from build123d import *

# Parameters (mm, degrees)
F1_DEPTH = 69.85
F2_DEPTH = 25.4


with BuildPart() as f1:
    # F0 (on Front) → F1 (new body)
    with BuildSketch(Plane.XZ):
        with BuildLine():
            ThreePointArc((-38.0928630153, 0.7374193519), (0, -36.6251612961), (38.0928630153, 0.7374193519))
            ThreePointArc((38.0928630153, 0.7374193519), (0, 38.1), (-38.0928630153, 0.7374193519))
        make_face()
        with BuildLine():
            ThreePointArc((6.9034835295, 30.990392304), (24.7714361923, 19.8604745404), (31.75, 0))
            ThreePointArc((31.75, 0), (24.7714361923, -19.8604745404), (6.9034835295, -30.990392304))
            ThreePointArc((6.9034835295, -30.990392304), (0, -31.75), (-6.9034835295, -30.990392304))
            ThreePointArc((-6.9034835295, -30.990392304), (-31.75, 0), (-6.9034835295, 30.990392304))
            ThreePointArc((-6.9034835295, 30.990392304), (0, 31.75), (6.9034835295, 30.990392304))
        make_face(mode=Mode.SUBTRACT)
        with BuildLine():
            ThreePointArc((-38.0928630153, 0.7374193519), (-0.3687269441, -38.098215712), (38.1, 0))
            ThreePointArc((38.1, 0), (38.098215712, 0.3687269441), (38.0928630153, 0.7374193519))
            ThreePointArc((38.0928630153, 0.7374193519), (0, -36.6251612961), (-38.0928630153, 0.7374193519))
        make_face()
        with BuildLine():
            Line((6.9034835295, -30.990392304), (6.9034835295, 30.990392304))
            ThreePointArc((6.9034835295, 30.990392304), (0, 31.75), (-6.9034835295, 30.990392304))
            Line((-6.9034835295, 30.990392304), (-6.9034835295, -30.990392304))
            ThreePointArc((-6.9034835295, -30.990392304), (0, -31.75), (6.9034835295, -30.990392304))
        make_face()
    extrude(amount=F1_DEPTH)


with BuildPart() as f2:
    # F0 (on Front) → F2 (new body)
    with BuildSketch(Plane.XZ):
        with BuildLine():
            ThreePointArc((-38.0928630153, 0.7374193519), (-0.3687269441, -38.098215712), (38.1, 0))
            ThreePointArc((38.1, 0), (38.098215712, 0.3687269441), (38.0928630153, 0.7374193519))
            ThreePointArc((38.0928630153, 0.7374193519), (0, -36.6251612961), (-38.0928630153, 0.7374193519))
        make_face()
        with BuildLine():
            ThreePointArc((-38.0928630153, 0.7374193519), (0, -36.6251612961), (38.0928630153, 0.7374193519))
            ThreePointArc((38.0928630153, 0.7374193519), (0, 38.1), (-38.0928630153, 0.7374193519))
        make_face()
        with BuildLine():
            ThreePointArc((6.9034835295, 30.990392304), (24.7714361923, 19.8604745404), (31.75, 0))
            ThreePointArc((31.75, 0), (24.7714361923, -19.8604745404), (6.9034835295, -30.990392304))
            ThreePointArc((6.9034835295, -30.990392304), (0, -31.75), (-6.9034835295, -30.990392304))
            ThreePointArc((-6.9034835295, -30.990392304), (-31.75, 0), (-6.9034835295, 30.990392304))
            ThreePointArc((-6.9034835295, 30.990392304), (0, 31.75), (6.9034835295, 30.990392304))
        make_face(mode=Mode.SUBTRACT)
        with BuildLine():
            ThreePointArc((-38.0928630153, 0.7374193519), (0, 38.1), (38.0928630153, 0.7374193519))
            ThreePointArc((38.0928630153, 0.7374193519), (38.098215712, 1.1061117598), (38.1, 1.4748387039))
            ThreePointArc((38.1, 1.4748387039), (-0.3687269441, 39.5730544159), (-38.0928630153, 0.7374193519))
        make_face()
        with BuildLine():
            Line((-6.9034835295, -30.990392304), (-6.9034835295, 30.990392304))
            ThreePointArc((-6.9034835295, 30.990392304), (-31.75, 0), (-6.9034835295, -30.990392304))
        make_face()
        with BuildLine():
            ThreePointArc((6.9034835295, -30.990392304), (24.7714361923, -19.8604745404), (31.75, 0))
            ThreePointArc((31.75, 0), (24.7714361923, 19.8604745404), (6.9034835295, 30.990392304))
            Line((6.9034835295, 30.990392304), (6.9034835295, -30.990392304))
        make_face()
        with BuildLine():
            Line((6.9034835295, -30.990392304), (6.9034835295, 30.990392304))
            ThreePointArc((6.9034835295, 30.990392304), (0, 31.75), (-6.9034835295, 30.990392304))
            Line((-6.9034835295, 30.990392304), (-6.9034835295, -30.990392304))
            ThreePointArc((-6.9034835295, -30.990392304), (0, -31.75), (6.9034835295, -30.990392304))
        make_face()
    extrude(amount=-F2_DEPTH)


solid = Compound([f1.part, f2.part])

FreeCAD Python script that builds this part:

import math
import FreeCAD as App
import Part
import Sketcher
Q = App.Units.Quantity

doc = App.newDocument("Part")
body = doc.addObject("PartDesign::Body", "Body")

sketch1 = body.newObject("Sketcher::SketchObject", "Sketch")
sketch1.AttachmentSupport = (doc.getObject("XZ_Plane"), [""])
sketch1.MapMode = "FlatFace"
sketch1.addGeometry(Part.ArcOfCircle(Part.Circle(App.Vector(0, 0, 0), App.Vector(0, 0, 1), 38.1), math.radians(1), math.radians(179)), False)
sketch1.addGeometry(Part.ArcOfCircle(Part.Circle(App.Vector(0, 0, 0), App.Vector(0, 0, 1), 38.1), math.radians(179), math.radians(360)), False)
sketch1.addGeometry(Part.ArcOfCircle(Part.Circle(App.Vector(0, 0, 0), App.Vector(0, 0, 1), 38.1), math.radians(0), math.radians(1.11)), False)
sketch1.addGeometry(Part.ArcOfCircle(Part.Circle(App.Vector(0, 0, 0), App.Vector(0, 0, 1), 31.8), math.radians(103), math.radians(257)), False)
sketch1.addGeometry(Part.LineSegment(App.Vector(-6.9, 31, 0), App.Vector(-6.9, -31, 0)), False)
sketch1.addGeometry(Part.ArcOfCircle(Part.Circle(App.Vector(0, 0, 0), App.Vector(0, 0, 1), 31.8), math.radians(-77), math.radians(77)), False)
sketch1.addGeometry(Part.LineSegment(App.Vector(6.9, -31, 0), App.Vector(6.9, 31, 0)), False)
sketch1.addConstraint(Sketcher.Constraint("Tangent", 0, 2, 1, 1))
sketch1.addConstraint(Sketcher.Constraint("Tangent", 1, 2, 2, 1))
sketch1.addConstraint(Sketcher.Constraint("Coincident", 2, 2, 0, 1))
sketch1.addConstraint(Sketcher.Constraint("Coincident", 3, 1, 4, 1))
sketch1.addConstraint(Sketcher.Constraint("Coincident", 4, 2, 3, 2))
sketch1.addConstraint(Sketcher.Constraint("Coincident", 5, 1, 6, 1))
sketch1.addConstraint(Sketcher.Constraint("Coincident", 6, 2, 5, 2))
sketch1.addConstraint(Sketcher.Constraint("Vertical", 4))
sketch1.addConstraint(Sketcher.Constraint("Vertical", 6))
sketch1.addConstraint(Sketcher.Constraint("Coincident", 0, 3, -1, 1))
sketch1.addConstraint(Sketcher.Constraint("Coincident", 3, 3, -1, 1))
sketch1.addConstraint(Sketcher.Constraint("Coincident", 5, 3, -1, 1))
sketch1.addConstraint(Sketcher.Constraint("Equal", 1, 2))
sketch1.addConstraint(Sketcher.Constraint("Equal", 3, 5))
sketch1.addConstraint(Sketcher.Constraint("PointOnObject", 1, 2, -1))
sketch1.addConstraint(Sketcher.Constraint("Horizontal", 0, 2, 2, 2))
sketch1.addConstraint(Sketcher.Constraint("Horizontal", 4, 2, 5, 1))
sketch1.addConstraint(Sketcher.Constraint("Radius", 0, Q("1.5 in")))
sketch1.addConstraint(Sketcher.Constraint("Radius", 3, Q("1.25 in")))
sketch1.addConstraint(Sketcher.Constraint("DistanceY", 4, 2, 4, 1, Q("61.980785 mm")))
sketch1.addConstraint(Sketcher.Constraint("DistanceY", -1, 1, 0, 2, Q("0.737419 mm")))
pad1 = body.newObject("PartDesign::Pad", "Pad")
pad1.Profile = sketch1
pad1.Length = Q("2.75 in")
body2 = doc.addObject("PartDesign::Body", "Body001")

sketch2 = body2.newObject("Sketcher::SketchObject", "Sketch001")
sketch2.AttachmentSupport = (doc.getObject("XZ_Plane001"), [""])
sketch2.MapMode = "FlatFace"
sketch2.addGeometry(Part.ArcOfCircle(Part.Circle(App.Vector(0, 0, 0), App.Vector(0, 0, 1), 38.1), math.radians(179), math.radians(360)), False)
sketch2.addGeometry(Part.ArcOfCircle(Part.Circle(App.Vector(0, 0, 0), App.Vector(0, 0, 1), 38.1), math.radians(0), math.radians(1.11)), False)
sketch2.addGeometry(Part.ArcOfCircle(Part.Circle(App.Vector(0, 1.5, 0), App.Vector(0, 0, 1), 38.1), math.radians(-1.11), math.radians(0)), False)
sketch2.addGeometry(Part.ArcOfCircle(Part.Circle(App.Vector(0, 1.5, 0), App.Vector(0, 0, 1), 38.1), math.radians(0), math.radians(181)), False)
sketch2.addConstraint(Sketcher.Constraint("Tangent", 0, 2, 1, 1))
sketch2.addConstraint(Sketcher.Constraint("Coincident", 1, 2, 2, 1))
sketch2.addConstraint(Sketcher.Constraint("Tangent", 2, 2, 3, 1))
sketch2.addConstraint(Sketcher.Constraint("Coincident", 3, 2, 0, 1))
sketch2.addConstraint(Sketcher.Constraint("Coincident", 0, 3, -1, 1))
sketch2.addConstraint(Sketcher.Constraint("Equal", 0, 1))
sketch2.addConstraint(Sketcher.Constraint("Equal", 1, 2))
sketch2.addConstraint(Sketcher.Constraint("Equal", 2, 3))
sketch2.addConstraint(Sketcher.Constraint("PointOnObject", 2, 3, -2))
sketch2.addConstraint(Sketcher.Constraint("PointOnObject", 0, 2, -1))
sketch2.addConstraint(Sketcher.Constraint("Horizontal", 3, 3, 2, 2))
sketch2.addConstraint(Sketcher.Constraint("Radius", 0, Q("1.5 in")))
sketch2.addConstraint(Sketcher.Constraint("DistanceY", -1, 1, 2, 3, Q("1.474839 mm")))
pad2 = body2.newObject("PartDesign::Pad", "Pad001")
pad2.Profile = sketch2
pad2.Length = Q("1 in")
pad2.Reversed = True

doc.recompute()
